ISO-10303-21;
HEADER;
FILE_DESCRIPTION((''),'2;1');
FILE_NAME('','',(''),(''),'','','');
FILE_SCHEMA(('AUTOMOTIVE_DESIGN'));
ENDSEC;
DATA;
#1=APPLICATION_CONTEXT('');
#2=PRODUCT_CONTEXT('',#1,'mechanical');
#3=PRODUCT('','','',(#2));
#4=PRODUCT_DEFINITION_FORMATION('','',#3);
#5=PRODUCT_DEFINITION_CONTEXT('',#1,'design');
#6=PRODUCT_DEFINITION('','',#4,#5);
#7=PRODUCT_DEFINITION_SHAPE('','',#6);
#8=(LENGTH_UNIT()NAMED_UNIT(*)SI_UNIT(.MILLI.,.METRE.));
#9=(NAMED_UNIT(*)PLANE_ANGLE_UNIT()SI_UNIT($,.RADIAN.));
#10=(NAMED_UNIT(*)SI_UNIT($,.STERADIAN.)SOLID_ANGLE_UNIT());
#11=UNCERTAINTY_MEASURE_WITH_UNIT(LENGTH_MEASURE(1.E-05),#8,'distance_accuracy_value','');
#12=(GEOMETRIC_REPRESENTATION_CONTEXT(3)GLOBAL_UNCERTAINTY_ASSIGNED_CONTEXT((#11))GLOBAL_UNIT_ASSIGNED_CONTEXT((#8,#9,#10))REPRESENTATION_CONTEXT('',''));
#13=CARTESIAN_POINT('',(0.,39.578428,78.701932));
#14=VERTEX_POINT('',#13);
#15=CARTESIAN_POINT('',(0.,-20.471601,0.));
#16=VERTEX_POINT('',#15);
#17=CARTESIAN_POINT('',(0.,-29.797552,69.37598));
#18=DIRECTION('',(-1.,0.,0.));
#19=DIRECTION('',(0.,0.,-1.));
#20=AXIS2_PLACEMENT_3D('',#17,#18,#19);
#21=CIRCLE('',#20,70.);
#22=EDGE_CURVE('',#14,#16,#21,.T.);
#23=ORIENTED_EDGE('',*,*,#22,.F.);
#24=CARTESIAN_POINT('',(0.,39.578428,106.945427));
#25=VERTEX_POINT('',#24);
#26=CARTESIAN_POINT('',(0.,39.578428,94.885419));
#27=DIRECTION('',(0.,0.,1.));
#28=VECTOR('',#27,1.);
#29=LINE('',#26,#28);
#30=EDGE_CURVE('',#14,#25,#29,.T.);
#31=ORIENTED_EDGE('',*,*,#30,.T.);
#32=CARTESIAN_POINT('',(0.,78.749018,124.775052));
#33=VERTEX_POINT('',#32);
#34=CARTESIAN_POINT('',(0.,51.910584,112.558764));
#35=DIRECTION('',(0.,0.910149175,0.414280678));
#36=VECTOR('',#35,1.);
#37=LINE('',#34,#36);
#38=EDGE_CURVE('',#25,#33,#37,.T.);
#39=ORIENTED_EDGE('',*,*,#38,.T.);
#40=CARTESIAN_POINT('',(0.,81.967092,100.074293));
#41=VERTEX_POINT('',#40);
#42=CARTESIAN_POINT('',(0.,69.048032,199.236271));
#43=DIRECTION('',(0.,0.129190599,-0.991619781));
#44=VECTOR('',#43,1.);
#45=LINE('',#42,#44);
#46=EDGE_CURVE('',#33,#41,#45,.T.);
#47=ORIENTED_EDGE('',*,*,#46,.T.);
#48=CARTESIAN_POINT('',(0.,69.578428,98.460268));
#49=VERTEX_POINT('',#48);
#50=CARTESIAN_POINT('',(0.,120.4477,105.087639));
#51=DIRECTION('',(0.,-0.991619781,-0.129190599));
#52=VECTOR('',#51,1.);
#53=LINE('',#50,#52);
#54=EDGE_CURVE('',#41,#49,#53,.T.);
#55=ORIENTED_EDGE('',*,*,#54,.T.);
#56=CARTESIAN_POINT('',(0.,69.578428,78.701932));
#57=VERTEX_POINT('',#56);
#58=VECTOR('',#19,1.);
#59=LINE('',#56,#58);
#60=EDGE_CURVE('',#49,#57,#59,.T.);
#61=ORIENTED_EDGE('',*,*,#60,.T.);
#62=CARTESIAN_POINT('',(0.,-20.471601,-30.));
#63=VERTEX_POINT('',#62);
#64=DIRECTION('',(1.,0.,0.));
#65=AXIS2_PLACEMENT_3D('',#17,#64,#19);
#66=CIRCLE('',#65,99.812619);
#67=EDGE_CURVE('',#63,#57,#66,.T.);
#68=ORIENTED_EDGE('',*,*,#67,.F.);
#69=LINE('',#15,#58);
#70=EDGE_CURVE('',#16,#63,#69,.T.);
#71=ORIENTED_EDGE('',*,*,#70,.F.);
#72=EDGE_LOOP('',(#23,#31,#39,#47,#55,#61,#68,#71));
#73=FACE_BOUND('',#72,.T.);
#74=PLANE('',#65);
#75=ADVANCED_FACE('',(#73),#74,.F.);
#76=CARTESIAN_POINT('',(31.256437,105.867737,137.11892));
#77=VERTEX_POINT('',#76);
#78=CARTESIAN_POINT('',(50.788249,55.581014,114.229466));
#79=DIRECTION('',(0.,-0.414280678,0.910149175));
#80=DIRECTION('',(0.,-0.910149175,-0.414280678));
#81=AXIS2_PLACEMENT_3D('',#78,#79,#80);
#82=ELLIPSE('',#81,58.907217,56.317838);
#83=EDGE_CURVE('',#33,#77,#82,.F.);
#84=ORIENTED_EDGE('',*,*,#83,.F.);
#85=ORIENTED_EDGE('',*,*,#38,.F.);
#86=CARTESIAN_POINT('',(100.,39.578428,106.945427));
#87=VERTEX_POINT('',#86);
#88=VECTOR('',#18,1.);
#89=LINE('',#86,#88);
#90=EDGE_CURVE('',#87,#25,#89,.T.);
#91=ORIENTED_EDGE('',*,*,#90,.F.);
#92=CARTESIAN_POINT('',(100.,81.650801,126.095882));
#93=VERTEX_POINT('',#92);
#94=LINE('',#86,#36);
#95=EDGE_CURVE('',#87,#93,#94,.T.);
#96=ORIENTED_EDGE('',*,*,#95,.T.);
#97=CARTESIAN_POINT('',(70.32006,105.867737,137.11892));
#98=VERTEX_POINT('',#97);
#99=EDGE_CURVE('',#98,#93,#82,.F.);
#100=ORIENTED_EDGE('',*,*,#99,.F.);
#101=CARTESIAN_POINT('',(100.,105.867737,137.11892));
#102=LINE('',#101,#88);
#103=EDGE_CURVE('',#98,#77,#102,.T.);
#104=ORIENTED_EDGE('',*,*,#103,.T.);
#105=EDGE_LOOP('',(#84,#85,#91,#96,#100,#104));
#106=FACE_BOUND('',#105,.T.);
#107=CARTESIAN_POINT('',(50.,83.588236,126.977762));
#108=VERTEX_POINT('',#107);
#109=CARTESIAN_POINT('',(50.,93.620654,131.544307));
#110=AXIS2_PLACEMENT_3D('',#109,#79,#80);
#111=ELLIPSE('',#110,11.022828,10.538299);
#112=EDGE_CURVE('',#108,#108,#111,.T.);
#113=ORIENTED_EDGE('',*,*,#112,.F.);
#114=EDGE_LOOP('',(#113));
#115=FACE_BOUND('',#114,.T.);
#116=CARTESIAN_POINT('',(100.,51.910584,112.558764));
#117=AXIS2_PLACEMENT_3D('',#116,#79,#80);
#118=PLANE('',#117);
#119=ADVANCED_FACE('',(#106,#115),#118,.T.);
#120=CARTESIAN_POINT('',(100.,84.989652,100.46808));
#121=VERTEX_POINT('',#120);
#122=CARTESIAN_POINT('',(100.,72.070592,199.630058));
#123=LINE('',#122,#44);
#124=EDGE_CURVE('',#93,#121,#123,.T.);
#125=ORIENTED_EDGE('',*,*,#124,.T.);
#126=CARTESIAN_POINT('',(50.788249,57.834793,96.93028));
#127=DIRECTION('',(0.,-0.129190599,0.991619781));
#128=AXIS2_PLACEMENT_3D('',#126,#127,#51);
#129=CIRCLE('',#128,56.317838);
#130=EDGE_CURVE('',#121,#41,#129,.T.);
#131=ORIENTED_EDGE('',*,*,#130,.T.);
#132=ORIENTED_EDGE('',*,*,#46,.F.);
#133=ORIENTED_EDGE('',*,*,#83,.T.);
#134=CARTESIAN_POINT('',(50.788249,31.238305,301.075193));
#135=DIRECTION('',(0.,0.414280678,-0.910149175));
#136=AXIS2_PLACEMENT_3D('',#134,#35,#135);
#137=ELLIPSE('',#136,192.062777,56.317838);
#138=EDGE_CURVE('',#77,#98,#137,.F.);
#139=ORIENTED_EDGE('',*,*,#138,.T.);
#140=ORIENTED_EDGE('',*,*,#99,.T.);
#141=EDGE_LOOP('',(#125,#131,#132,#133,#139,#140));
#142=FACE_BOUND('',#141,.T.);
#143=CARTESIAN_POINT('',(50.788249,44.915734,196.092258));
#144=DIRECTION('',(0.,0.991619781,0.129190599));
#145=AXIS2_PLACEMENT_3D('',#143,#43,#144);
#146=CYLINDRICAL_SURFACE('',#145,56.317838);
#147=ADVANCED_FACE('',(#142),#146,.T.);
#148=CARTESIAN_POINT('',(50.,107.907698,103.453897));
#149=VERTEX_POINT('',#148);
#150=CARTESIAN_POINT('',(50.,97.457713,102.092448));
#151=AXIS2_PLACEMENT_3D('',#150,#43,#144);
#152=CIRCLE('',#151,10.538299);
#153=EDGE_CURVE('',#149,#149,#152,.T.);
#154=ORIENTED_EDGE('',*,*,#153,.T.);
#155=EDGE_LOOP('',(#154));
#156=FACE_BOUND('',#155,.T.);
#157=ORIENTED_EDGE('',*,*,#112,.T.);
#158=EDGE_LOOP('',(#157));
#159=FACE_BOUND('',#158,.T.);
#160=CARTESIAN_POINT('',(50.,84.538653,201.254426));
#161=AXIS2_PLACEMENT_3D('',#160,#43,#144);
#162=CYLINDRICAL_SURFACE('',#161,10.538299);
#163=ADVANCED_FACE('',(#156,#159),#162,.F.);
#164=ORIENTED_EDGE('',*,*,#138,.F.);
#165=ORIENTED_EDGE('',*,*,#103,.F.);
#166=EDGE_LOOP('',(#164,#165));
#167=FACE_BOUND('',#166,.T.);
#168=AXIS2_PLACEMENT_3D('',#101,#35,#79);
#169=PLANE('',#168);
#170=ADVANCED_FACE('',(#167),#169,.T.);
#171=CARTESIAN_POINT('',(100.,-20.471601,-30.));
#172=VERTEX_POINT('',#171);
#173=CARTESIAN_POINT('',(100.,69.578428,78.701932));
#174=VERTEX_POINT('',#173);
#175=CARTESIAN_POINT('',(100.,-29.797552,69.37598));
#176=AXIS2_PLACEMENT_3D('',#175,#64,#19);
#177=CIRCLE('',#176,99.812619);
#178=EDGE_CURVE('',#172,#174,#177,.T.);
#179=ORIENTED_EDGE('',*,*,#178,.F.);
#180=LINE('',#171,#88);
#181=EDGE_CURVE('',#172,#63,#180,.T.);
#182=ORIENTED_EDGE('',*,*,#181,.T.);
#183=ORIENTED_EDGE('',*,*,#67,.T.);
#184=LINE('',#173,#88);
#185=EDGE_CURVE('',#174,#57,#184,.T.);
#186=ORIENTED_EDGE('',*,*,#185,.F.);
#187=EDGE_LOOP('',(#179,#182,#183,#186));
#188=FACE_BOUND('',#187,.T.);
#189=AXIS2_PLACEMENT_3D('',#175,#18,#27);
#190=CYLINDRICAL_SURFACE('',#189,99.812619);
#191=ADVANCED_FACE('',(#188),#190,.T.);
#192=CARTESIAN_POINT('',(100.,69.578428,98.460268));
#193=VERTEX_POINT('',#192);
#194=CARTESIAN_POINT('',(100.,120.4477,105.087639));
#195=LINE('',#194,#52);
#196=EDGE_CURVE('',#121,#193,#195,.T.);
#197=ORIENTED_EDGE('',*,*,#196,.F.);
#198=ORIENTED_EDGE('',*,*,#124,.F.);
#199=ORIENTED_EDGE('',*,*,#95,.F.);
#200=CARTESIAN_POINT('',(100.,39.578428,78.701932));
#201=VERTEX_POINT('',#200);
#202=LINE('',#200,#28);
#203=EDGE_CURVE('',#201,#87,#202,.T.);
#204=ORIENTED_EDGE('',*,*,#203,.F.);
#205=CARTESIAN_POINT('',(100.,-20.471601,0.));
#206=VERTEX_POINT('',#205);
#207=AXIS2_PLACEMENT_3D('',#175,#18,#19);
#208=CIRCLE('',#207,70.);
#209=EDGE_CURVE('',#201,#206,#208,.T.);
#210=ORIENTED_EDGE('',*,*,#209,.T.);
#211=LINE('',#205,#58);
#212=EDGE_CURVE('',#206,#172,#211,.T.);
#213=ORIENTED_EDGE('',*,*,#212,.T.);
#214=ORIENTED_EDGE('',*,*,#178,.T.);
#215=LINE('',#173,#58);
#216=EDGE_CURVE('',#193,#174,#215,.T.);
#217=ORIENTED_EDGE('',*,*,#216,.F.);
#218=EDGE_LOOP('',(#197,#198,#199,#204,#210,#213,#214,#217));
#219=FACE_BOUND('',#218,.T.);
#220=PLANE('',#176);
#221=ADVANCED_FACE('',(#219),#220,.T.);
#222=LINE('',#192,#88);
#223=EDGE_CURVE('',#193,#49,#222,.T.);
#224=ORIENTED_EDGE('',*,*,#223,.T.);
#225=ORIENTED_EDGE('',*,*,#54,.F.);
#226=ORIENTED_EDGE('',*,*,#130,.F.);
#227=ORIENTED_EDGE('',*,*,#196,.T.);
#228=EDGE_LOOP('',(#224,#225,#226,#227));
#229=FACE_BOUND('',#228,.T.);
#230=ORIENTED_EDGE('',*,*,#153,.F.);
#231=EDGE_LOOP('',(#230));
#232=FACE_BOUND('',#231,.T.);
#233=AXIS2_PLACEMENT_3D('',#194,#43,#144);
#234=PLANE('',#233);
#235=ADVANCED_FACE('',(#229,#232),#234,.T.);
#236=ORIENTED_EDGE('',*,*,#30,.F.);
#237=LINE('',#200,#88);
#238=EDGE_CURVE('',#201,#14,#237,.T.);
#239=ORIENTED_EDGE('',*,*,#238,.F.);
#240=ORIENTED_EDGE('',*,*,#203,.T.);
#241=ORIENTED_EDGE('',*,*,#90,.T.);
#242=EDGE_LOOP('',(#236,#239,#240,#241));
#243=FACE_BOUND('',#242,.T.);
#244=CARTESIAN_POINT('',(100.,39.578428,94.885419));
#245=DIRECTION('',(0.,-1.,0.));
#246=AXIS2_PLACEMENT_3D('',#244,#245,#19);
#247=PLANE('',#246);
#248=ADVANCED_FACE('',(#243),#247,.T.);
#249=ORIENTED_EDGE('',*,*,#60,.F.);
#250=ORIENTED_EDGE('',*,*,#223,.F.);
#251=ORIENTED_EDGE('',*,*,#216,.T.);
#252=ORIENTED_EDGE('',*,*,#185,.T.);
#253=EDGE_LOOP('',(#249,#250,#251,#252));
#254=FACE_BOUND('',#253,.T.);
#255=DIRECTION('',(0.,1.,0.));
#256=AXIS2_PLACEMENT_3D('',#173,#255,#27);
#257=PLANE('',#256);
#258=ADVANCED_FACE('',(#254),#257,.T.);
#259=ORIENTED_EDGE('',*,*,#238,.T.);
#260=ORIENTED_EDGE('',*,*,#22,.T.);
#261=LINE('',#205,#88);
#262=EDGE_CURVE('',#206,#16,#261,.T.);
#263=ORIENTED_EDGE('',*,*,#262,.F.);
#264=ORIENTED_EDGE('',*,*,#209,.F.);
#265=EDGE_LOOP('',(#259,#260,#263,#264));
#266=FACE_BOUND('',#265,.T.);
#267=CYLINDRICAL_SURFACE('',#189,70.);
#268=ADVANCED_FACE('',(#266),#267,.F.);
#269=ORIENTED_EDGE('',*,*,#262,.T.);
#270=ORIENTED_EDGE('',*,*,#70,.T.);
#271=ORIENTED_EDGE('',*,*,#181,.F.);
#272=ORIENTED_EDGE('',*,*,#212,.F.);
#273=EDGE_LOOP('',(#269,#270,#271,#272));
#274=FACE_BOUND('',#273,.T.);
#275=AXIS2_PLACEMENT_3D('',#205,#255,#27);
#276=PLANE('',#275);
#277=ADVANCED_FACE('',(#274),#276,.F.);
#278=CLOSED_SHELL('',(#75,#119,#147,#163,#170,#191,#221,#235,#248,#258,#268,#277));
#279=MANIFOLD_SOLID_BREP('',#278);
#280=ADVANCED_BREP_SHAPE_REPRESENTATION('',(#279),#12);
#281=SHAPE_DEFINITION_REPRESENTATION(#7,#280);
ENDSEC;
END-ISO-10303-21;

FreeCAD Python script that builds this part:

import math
import FreeCAD as App
import Part
import Sketcher

doc = App.newDocument("Part")
params = doc.addObject("Spreadsheet::Sheet", "Params")
for row, (alias, value) in enumerate([
    ("sketch1_radius", "70 mm"),
    ("sketch1_width", "30 mm"),
    ("pad1_length", "100 mm"),
    ("sketch2_width", "30 mm"),
    ("pad2_length", "100 mm"),
    ("pocket1_length", "100 mm"),
    ("pocket2_length", "100 mm"),
], start=1):
    params.set(f"A{row}", alias)
    params.set(f"B{row}", "=" + value)
    params.setAlias(f"B{row}", alias)

body = doc.addObject("PartDesign::Body", "Body")

# Sketch on YZ plane
sketch1 = body.newObject("Sketcher::SketchObject", "Sketch")
sketch1.AttachmentSupport = (doc.getObject("YZ_Plane"), [""])
sketch1.MapMode = "FlatFace"
sketch1.addGeometry(Part.LineSegment(App.Vector(-20, 0, 0), App.Vector(-20, -30, 0)), False)
sketch1.addGeometry(Part.ArcOfCircle(Part.Circle(App.Vector(-30, 69, 0), App.Vector(0, 0, 1), 100), math.radians(-85), math.radians(5)), False)
sketch1.addGeometry(Part.LineSegment(App.Vector(70, 79, 0), App.Vector(40, 79, 0)), False)
sketch1.addGeometry(Part.ArcOfCircle(Part.Circle(App.Vector(-30, 69, 0), App.Vector(0, 0, 1), 70), math.radians(-82), math.radians(8)), False)
sketch1.addConstraint(Sketcher.Constraint("Coincident", 0, 2, 1, 1))
sketch1.addConstraint(Sketcher.Constraint("Coincident", 1, 2, 2, 1))
sketch1.addConstraint(Sketcher.Constraint("Coincident", 2, 2, 3, 2))
sketch1.addConstraint(Sketcher.Constraint("Coincident", 3, 1, 0, 1))
sketch1.addConstraint(Sketcher.Constraint("Vertical", 0))
sketch1.addConstraint(Sketcher.Constraint("Horizontal", 2))
sketch1.addConstraint(Sketcher.Constraint("Coincident", 3, 3, 1, 3))
sketch1.addConstraint(Sketcher.Constraint("PointOnObject", 3, 1, -1))
sketch1.addConstraint(Sketcher.Constraint("Equal", 2, 0))
sketch1.addConstraint(Sketcher.Constraint("Radius", 3, 70.0))
sketch1.addConstraint(Sketcher.Constraint("DistanceX", 2, 2, 2, 1, 30.0))
sketch1.addConstraint(Sketcher.Constraint("Radius", 1, 99.812619))
sketch1.addConstraint(Sketcher.Constraint("DistanceX", 0, 2, -1, 1, 20.471601))
sketch1.setExpression("Constraints[9]", "Params.sketch1_radius")
sketch1.setExpression("Constraints[10]", "Params.sketch1_width")
pad1 = body.newObject("PartDesign::Pad", "Pad")
pad1.Profile = sketch1
pad1.setExpression("Length", "Params.pad1_length")

# Sketch on YZ plane
sketch2 = body.newObject("Sketcher::SketchObject", "Sketch001")
sketch2.AttachmentSupport = (doc.getObject("YZ_Plane"), [""])
sketch2.MapMode = "FlatFace"
sketch2.AttachmentOffset = App.Placement(App.Vector(0, 0, 100), App.Rotation())
sketch2.addGeometry(Part.LineSegment(App.Vector(40, 79, 0), App.Vector(40, 95, 0)), False)
sketch2.addGeometry(Part.LineSegment(App.Vector(40, 95, 0), App.Vector(40, 107, 0)), False)
sketch2.addGeometry(Part.LineSegment(App.Vector(40, 107, 0), App.Vector(52, 113, 0)), False)
sketch2.addGeometry(Part.LineSegment(App.Vector(52, 113, 0), App.Vector(106, 137, 0)), False)
sketch2.addGeometry(Part.LineSegment(App.Vector(106, 137, 0), App.Vector(120, 105, 0)), False)
sketch2.addGeometry(Part.LineSegment(App.Vector(120, 105, 0), App.Vector(70, 98, 0)), False)
sketch2.addGeometry(Part.LineSegment(App.Vector(70, 98, 0), App.Vector(70, 79, 0)), False)
sketch2.addGeometry(Part.LineSegment(App.Vector(70, 79, 0), App.Vector(40, 79, 0)), False)
sketch2.addConstraint(Sketcher.Constraint("Coincident", 0, 2, 1, 1))
sketch2.addConstraint(Sketcher.Constraint("Coincident", 1, 2, 2, 1))
sketch2.addConstraint(Sketcher.Constraint("Coincident", 2, 2, 3, 1))
sketch2.addConstraint(Sketcher.Constraint("Coincident", 3, 2, 4, 1))
sketch2.addConstraint(Sketcher.Constraint("Coincident", 4, 2, 5, 1))
sketch2.addConstraint(Sketcher.Constraint("Coincident", 5, 2, 6, 1))
sketch2.addConstraint(Sketcher.Constraint("Coincident", 6, 2, 7, 1))
sketch2.addConstraint(Sketcher.Constraint("Coincident", 7, 2, 0, 1))
sketch2.addConstraint(Sketcher.Constraint("Vertical", 0))
sketch2.addConstraint(Sketcher.Constraint("Vertical", 1))
sketch2.addConstraint(Sketcher.Constraint("Vertical", 6))
sketch2.addConstraint(Sketcher.Constraint("Horizontal", 7))
sketch2.addConstraint(Sketcher.Constraint("Parallel", 2, 3))
sketch2.addConstraint(Sketcher.Constraint("Perpendicular", 3, 4))
sketch2.addConstraint(Sketcher.Constraint("DistanceX", 7, 2, 7, 1, 30.0))
sketch2.addConstraint(Sketcher.Constraint("Distance", 2, 13.549599))
sketch2.addConstraint(Sketcher.Constraint("DistanceY", 1, 1, 1, 2, 12.060008))
sketch2.addConstraint(Sketcher.Constraint("DistanceX", -1, 1, 4, 2, 120.4477))
sketch2.addConstraint(Sketcher.Constraint("DistanceY", 0, 2, 3, 2, 42.233502))
sketch2.addConstraint(Sketcher.Constraint("Distance", 4, 35.193441))
sketch2.addConstraint(Sketcher.Constraint("Distance", 5, 51.29917))
sketch2.addConstraint(Sketcher.Constraint("DistanceY", 0, 1, 0, 2, 16.183487))
sketch2.addConstraint(Sketcher.Constraint("DistanceY", 6, 2, 6, 1, 19.758337))
sketch2.addConstraint(Sketcher.Constraint("DistanceY", -1, 1, 0, 2, 94.885419))
sketch2.setExpression("Constraints[14]", "Params.sketch2_width")
pad2 = body.newObject("PartDesign::Pad", "Pad001")
pad2.Profile = sketch2
pad2.setExpression("Length", "Params.pad2_length")
pad2.Reversed = True

# Sketch on an angled plane
sketch3 = body.newObject("Sketcher::SketchObject", "Sketch002")
sketch3.Placement = App.Placement(App.Vector(0, -11.452265, 87.903396), App.Rotation(App.Vector(-1, 0, 0), App.Vector(0, 0.991619781, 0.129190599), App.Vector(0, 0.129190599, -0.991619781), "ZXY"))
sketch3.addGeometry(Part.Circle(App.Vector(-50, 110, 0), App.Vector(0, 0, 1), 11), False)
sketch3.addConstraint(Sketcher.Constraint("DistanceX", 0, 3, -1, 1, 50.0))
sketch3.addConstraint(Sketcher.Constraint("Diameter", 0, 21.076597))
sketch3.addConstraint(Sketcher.Constraint("DistanceY", -1, 1, 0, 3, 109.83038))
pocket1 = body.newObject("PartDesign::Pocket", "Pocket")
pocket1.Profile = sketch3
pocket1.setExpression("Length", "Params.pocket1_length")

# Sketch on an angled plane
sketch4 = body.newObject("Sketcher::SketchObject", "Sketch003")
sketch4.Placement = App.Placement(App.Vector(0, -11.452265, 87.903396), App.Rotation(App.Vector(-1, 0, 0), App.Vector(0, 0.991619781, 0.129190599), App.Vector(0, 0.129190599, -0.991619781), "ZXY"))
sketch4.addGeometry(Part.LineSegment(App.Vector(-100, 157, 0), App.Vector(-100, 97, 0)), False)
sketch4.addGeometry(Part.ArcOfCircle(Part.Circle(App.Vector(-51, 70, 0), App.Vector(0, 0, 1), 56), math.radians(26), math.radians(151)), False)
sketch4.addGeometry(Part.LineSegment(App.Vector(0, 94, 0), App.Vector(0, 160, 0)), False)
sketch4.addGeometry(Part.LineSegment(App.Vector(0, 160, 0), App.Vector(-100, 157, 0)), False)
sketch4.addConstraint(Sketcher.Constraint("Coincident", 0, 2, 1, 2))
sketch4.addConstraint(Sketcher.Constraint("Coincident", 1, 1, 2, 1))
sketch4.addConstraint(Sketcher.Constraint("Coincident", 2, 2, 3, 1))
sketch4.addConstraint(Sketcher.Constraint("Coincident", 3, 2, 0, 1))
sketch4.addConstraint(Sketcher.Constraint("Vertical", 0))
sketch4.addConstraint(Sketcher.Constraint("Vertical", 2))
sketch4.addConstraint(Sketcher.Constraint("PointOnObject", 1, 1, -2))
sketch4.addConstraint(Sketcher.Constraint("DistanceX", 0, 2, -1, 1, 100.0))
sketch4.addConstraint(Sketcher.Constraint("Radius", 1, 56.317838))
sketch4.addConstraint(Sketcher.Constraint("DistanceY", 0, 2, 0, 1, 59.573939))
sketch4.addConstraint(Sketcher.Constraint("DistanceY", 2, 1, 2, 2, 65.989161))
sketch4.addConstraint(Sketcher.Constraint("Distance", 3, 100.056671))
sketch4.addConstraint(Sketcher.Constraint("DistanceY", -1, 1, 0, 2, 97.256952))
pocket2 = body.newObject("PartDesign::Pocket", "Pocket001")
pocket2.Profile = sketch4
pocket2.setExpression("Length", "Params.pocket2_length")

doc.recompute()
